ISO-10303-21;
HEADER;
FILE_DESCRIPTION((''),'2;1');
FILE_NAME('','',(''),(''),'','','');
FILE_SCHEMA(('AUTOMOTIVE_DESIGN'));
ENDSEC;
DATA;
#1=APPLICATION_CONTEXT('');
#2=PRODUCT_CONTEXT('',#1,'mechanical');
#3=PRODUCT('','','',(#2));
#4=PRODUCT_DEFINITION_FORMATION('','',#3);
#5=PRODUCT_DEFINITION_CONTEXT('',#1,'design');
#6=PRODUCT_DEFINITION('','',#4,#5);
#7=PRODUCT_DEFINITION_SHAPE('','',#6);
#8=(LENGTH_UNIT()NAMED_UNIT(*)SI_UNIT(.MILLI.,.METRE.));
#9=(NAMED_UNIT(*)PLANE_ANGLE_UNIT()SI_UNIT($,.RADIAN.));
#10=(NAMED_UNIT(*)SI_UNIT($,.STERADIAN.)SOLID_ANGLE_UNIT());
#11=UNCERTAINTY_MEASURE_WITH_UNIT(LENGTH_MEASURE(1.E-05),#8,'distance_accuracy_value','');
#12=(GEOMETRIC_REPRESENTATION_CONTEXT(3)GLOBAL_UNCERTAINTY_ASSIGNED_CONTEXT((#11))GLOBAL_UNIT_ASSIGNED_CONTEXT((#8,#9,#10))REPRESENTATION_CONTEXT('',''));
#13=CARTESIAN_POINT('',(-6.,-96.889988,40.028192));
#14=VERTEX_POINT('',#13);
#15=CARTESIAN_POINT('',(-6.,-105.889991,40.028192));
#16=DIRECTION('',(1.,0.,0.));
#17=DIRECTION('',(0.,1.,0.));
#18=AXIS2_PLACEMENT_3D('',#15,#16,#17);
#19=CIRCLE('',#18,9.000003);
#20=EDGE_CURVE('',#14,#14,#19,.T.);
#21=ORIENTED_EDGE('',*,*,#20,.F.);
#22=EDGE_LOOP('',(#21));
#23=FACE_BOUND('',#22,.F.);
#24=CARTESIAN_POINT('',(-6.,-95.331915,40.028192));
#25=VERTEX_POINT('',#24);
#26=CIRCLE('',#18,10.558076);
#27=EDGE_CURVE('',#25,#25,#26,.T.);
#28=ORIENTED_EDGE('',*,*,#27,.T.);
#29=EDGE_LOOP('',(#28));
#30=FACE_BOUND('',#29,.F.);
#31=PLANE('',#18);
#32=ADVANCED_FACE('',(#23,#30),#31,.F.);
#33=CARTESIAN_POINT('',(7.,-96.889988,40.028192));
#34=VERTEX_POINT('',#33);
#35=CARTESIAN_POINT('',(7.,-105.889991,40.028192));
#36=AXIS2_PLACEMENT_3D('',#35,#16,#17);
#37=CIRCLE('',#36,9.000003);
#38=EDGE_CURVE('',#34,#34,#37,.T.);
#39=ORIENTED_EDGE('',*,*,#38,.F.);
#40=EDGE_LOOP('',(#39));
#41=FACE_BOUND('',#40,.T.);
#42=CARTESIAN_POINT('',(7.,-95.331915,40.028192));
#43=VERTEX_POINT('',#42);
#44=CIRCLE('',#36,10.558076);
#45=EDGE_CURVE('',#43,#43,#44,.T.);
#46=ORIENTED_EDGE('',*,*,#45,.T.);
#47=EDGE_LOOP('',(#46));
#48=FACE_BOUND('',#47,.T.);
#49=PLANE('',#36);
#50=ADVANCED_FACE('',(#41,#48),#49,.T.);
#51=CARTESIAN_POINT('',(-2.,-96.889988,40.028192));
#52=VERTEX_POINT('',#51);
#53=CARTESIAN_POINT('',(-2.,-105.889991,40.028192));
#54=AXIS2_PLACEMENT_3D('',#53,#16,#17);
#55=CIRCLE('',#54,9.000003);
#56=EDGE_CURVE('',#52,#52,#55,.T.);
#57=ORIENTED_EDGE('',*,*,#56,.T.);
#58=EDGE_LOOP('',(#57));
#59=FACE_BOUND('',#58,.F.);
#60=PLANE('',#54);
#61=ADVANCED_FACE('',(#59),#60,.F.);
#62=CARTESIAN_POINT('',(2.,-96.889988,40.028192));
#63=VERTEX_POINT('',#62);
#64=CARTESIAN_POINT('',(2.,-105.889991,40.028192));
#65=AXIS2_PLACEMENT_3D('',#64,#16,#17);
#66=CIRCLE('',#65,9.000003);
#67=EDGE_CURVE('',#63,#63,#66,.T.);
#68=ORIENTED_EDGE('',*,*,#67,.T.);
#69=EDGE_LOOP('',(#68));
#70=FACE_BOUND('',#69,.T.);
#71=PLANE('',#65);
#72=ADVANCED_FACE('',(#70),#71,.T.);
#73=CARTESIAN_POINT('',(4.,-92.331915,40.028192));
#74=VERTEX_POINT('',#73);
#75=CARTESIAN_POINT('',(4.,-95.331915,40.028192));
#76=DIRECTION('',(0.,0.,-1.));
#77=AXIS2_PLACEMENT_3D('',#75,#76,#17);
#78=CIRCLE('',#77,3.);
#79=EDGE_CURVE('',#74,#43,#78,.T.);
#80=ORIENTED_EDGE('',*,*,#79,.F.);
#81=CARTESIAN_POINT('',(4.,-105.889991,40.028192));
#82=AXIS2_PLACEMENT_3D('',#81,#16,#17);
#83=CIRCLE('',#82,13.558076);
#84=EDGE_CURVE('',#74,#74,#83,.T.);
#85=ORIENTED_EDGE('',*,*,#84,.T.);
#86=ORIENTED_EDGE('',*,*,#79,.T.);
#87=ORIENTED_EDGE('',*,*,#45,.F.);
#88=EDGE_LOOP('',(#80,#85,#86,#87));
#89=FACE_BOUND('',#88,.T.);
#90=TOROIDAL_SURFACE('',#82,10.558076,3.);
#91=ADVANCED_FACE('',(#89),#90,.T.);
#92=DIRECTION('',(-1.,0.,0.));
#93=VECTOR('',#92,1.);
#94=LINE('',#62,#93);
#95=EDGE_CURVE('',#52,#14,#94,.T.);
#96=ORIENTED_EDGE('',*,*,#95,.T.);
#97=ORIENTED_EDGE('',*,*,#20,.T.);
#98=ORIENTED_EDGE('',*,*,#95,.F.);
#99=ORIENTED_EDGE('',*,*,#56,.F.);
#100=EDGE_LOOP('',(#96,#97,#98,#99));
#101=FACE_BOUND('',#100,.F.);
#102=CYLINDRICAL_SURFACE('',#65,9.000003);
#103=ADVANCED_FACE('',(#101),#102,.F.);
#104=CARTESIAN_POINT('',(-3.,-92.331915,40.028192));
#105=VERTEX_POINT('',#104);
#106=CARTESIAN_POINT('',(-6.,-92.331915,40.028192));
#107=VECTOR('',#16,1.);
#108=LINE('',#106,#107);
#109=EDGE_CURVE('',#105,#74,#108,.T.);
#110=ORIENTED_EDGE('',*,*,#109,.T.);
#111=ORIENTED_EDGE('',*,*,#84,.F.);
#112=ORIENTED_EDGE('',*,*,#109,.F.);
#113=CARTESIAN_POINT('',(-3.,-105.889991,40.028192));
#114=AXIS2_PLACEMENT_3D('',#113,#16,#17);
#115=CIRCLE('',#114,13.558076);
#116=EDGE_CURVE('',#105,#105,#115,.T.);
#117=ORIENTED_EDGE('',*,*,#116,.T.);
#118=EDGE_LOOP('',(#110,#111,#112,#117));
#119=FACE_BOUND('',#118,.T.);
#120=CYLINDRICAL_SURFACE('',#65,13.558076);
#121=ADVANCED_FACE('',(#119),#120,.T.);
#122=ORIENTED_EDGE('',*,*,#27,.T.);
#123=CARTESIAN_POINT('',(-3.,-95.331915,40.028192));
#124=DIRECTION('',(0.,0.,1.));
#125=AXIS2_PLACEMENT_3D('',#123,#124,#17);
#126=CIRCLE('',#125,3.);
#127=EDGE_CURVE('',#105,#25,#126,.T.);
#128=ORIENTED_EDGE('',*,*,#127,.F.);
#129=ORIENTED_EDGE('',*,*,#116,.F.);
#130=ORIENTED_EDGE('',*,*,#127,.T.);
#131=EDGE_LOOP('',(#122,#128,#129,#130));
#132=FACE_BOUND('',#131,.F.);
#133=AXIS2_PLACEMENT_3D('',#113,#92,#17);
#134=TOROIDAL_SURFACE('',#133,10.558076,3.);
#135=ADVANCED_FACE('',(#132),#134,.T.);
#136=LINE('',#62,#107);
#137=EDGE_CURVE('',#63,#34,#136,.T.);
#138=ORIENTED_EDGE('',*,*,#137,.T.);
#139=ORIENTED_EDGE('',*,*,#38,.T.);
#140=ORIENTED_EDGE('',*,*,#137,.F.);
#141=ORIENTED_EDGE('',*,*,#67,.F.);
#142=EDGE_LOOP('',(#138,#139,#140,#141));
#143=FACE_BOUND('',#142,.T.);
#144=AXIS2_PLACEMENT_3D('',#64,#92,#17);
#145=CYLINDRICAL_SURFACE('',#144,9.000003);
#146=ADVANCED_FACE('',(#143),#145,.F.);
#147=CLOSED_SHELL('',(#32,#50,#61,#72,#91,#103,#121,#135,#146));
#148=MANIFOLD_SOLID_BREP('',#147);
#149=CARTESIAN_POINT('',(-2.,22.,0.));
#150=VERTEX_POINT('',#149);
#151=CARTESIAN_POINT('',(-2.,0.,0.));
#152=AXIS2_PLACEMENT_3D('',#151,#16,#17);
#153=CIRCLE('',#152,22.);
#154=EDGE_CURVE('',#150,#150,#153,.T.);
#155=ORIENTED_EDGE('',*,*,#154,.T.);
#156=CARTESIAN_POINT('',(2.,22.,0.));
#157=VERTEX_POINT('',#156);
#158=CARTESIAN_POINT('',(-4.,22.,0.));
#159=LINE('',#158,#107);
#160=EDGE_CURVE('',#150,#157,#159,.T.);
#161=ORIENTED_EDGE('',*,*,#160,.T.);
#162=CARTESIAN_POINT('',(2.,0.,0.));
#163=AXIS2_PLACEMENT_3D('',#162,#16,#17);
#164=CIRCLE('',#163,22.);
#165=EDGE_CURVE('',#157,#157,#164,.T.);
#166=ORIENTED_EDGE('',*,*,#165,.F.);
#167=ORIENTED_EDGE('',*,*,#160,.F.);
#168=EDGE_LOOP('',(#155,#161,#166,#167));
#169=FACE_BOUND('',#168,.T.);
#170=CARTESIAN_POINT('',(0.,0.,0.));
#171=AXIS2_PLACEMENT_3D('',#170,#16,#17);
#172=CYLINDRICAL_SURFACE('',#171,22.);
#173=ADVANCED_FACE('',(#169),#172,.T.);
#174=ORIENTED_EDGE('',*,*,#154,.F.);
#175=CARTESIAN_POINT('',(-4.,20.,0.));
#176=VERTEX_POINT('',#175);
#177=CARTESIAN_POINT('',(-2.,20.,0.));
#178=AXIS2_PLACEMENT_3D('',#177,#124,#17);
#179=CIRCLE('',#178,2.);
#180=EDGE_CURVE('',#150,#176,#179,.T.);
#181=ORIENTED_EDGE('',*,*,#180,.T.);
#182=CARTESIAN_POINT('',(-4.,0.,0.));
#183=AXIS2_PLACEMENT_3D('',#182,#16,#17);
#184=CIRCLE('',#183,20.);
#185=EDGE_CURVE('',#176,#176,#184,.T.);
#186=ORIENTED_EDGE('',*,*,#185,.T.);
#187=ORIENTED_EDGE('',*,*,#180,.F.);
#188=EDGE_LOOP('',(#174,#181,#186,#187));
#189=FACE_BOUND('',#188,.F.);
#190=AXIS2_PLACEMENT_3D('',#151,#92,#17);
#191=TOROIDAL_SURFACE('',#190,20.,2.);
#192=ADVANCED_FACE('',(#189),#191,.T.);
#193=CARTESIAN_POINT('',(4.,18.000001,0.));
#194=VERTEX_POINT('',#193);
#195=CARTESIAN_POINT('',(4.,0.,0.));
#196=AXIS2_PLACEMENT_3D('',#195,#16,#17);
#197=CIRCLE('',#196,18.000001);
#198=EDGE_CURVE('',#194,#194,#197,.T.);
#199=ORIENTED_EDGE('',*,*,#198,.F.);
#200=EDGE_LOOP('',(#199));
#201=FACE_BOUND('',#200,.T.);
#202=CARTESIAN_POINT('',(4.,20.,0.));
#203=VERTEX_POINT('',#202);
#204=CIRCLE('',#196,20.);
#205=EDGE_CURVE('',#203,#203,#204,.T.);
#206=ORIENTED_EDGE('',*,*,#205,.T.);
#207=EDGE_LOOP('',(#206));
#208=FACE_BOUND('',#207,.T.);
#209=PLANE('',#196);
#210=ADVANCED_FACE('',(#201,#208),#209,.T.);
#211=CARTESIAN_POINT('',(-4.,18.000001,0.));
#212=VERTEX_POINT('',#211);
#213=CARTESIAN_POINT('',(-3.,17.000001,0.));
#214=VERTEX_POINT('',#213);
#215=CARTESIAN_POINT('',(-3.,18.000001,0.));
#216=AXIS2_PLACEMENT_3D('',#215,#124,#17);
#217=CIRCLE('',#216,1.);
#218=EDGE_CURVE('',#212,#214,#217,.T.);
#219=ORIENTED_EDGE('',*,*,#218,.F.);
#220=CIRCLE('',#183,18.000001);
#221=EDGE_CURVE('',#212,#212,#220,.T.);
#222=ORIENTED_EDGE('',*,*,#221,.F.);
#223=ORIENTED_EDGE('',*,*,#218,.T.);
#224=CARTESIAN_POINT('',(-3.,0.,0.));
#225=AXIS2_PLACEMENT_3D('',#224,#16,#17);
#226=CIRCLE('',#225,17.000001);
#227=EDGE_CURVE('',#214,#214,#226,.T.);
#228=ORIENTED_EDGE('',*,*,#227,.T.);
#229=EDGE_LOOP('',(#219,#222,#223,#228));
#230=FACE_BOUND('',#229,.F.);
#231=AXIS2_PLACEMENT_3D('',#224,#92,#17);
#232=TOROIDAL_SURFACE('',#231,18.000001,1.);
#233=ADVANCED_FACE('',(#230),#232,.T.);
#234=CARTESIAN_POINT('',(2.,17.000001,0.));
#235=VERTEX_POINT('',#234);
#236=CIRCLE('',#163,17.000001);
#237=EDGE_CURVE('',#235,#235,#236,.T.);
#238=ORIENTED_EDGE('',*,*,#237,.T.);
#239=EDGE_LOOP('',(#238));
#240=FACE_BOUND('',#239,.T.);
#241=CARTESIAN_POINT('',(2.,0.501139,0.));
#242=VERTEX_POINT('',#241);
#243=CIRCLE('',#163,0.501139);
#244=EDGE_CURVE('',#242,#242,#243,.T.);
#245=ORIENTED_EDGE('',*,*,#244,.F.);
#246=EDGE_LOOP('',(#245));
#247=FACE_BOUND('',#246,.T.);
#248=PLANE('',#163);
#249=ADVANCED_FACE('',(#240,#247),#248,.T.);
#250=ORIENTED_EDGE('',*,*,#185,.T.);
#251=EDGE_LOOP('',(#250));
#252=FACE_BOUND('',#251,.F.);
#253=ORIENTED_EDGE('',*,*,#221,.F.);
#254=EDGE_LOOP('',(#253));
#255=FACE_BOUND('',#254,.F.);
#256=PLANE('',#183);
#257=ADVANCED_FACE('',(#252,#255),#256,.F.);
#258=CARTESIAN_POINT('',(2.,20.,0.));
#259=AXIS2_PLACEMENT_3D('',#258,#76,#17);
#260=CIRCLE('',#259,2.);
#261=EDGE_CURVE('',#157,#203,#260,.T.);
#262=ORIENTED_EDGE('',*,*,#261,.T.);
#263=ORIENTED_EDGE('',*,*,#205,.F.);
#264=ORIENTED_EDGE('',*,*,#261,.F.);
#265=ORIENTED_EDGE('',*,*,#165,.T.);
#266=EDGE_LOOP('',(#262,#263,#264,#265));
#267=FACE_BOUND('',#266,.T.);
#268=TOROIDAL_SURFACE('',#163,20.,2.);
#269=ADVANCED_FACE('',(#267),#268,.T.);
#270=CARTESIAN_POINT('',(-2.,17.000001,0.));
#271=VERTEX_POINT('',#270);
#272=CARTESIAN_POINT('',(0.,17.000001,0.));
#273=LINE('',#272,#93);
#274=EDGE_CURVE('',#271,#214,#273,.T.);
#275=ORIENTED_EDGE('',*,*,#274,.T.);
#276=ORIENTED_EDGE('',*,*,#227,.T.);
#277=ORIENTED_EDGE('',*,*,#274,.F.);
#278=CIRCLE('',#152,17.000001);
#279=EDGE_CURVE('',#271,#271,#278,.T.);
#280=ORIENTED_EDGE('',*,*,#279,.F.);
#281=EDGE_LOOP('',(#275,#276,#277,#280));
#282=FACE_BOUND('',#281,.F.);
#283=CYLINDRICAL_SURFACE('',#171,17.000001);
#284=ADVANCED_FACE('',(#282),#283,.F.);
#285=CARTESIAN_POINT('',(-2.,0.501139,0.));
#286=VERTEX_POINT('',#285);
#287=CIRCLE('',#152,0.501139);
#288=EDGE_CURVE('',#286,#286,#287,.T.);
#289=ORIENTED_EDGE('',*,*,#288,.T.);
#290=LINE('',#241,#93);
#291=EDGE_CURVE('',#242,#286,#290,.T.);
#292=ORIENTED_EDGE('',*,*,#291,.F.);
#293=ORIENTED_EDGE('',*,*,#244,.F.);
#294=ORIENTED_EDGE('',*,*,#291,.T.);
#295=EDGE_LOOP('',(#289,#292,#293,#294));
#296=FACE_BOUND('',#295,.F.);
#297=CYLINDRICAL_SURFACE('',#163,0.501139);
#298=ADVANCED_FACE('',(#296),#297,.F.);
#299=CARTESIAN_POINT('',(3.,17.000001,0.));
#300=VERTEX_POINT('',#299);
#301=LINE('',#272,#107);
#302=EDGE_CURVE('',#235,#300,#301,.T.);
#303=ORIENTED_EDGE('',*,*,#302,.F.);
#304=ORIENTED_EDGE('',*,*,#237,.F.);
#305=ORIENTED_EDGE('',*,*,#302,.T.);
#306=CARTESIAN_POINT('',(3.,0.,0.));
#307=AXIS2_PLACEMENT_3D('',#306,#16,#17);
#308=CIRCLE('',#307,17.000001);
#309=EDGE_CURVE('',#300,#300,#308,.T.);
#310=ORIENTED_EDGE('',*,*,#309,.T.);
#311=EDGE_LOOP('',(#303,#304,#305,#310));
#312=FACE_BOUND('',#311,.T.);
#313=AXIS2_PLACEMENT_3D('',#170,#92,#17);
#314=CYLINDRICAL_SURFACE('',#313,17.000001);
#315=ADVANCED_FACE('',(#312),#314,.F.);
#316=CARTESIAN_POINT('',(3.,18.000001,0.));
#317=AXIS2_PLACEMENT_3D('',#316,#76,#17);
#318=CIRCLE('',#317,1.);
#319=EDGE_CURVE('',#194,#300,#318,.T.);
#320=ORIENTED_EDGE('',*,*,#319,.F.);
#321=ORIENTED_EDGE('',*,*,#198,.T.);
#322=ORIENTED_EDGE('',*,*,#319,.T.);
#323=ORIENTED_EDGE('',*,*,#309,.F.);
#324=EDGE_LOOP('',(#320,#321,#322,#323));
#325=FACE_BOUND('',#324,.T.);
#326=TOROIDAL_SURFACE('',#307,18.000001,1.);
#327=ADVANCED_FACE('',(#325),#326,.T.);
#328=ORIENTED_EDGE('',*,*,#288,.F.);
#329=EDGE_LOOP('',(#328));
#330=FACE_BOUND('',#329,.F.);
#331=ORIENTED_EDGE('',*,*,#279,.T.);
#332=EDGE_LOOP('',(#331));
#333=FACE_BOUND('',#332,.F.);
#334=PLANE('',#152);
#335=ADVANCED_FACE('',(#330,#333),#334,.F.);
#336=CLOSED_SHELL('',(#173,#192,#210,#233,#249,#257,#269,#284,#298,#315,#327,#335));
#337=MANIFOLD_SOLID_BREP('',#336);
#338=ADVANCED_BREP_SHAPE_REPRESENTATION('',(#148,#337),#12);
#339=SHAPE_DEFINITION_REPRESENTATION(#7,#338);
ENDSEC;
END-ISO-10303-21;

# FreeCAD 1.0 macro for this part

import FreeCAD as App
import Part
import Sketcher

V = App.Vector
Q = App.Units.Quantity


def edges_at(feature, points):
    """Names of the edges that pass closest to the given points."""
    edges = feature.Shape.Edges
    near = lambda p: min(range(len(edges)), key=lambda i: edges[i].distToShape(Part.Vertex(*p))[0])
    return sorted({f"Edge{near(p) + 1}" for p in points})

doc = App.newDocument("Part")
body = doc.addObject("PartDesign::Body", "Body")

sketch1 = body.newObject("Sketcher::SketchObject", "Sketch")
sketch1.AttachmentSupport = (doc.getObject("YZ_Plane"), [""])
sketch1.MapMode = "FlatFace"
sketch1.addGeometry(Part.Circle(V(0, 0, 0), V(0, 0, 1), 17.000001), False)
sketch1.addConstraint([
    Sketcher.Constraint("Coincident", 0, 3, -1, 1),
    Sketcher.Constraint("Diameter", 0, Q("34.000002 mm")),
])
pad1 = body.newObject("PartDesign::Pad", "Pad")
pad1.Profile = sketch1
pad1.Type = "TwoLengths"
pad1.Length = 2
pad1.Length2 = 2

sketch2 = body.newObject("Sketcher::SketchObject", "Sketch001")
sketch2.AttachmentSupport = (doc.getObject("YZ_Plane"), [""])
sketch2.MapMode = "FlatFace"
sketch2.addGeometry([
    Part.Circle(V(0, 0, 0), V(0, 0, 1), 22),
    Part.Circle(V(0, 0, 0), V(0, 0, 1), 17.000001),
], False)
sketch2.addConstraint([
    Sketcher.Constraint("Coincident", 0, 3, -1, 1),
    Sketcher.Constraint("Coincident", 1, 3, -1, 1),
    Sketcher.Constraint("Diameter", 0, Q("44 mm")),
    Sketcher.Constraint("Diameter", 1, Q("34.000002 mm")),
])
pad2 = body.newObject("PartDesign::Pad", "Pad001")
pad2.Profile = sketch2
pad2.Type = "TwoLengths"
pad2.Length = 4
pad2.Length2 = 4
doc.recompute()

fillet = body.newObject("PartDesign::Fillet", "Fillet")
fillet.Base = (pad2, edges_at(pad2, [(4, -22, 0), (-4, -22, 0)]))
fillet.Radius = 2
doc.recompute()

fillet2 = body.newObject("PartDesign::Fillet", "Fillet001")
fillet2.Base = (fillet, edges_at(fillet, [(4, -17, 0), (-4, -17, 0)]))
fillet2.Radius = 1

sketch3 = body.newObject("Sketcher::SketchObject", "Sketch002")
sketch3.AttachmentSupport = (doc.getObject("YZ_Plane"), [""])
sketch3.MapMode = "FlatFace"
sketch3.AttachmentOffset = App.Placement(V(0, 0, 2), App.Rotation())
sketch3.addGeometry(Part.Circle(V(0, 0, 0), V(0, 0, 1), 0.501139), False)
sketch3.addConstraint([
    Sketcher.Constraint("Coincident", 0, 3, -1, 1),
    Sketcher.Constraint("Diameter", 0, Q("1.002278 mm")),
])
pocket1 = body.newObject("PartDesign::Pocket", "Pocket")
pocket1.Profile = sketch3
pocket1.Length = 25
pocket2 = body.newObject("PartDesign::Pocket", "Pocket001")
pocket2.Profile = sketch3
pocket2.Length = 25
body2 = doc.addObject("PartDesign::Body", "Body001")

sketch4 = body2.newObject("Sketcher::SketchObject", "Sketch003")
sketch4.AttachmentSupport = (doc.getObject("YZ_Plane001"), [""])
sketch4.MapMode = "FlatFace"
sketch4.addGeometry(Part.Circle(V(-105.889991, 40.028192, 0), V(0, 0, 1), 9.000003), False)
sketch4.addConstraint([
    Sketcher.Constraint("Diameter", 0, Q("18.000006 mm")),
    Sketcher.Constraint("DistanceX", 0, 3, -1, 1, Q("105.889991 mm")),
    Sketcher.Constraint("DistanceY", -1, 1, 0, 3, Q("40.028192 mm")),
])
pad3 = body2.newObject("PartDesign::Pad", "Pad002")
pad3.Profile = sketch4
pad3.Type = "TwoLengths"
pad3.Length = 2
pad3.Length2 = 2

sketch5 = body2.newObject("Sketcher::SketchObject", "Sketch004")
sketch5.AttachmentSupport = (doc.getObject("YZ_Plane001"), [""])
sketch5.MapMode = "FlatFace"
sketch5.AttachmentOffset = App.Placement(V(0, 0, 2), App.Rotation())
sketch5.addGeometry([
    Part.Circle(V(-105.889991, 40.028192, 0), V(0, 0, 1), 13.558076),
    Part.Circle(V(-105.889991, 40.028192, 0), V(0, 0, 1), 9.000003),
], False)
sketch5.addConstraint([
    Sketcher.Constraint("Coincident", 1, 3, 0, 3),
    Sketcher.Constraint("Diameter", 0, Q("27.116152 mm")),
    Sketcher.Constraint("Diameter", 1, Q("18.000006 mm")),
    Sketcher.Constraint("DistanceX", 0, 3, -1, 1, Q("105.889991 mm")),
    Sketcher.Constraint("DistanceY", -1, 1, 0, 3, Q("40.028192 mm")),
])
pad4 = body2.newObject("PartDesign::Pad", "Pad003")
pad4.Profile = sketch5
pad4.Type = "TwoLengths"
pad4.Length = 5
pad4.Length2 = 8
doc.recompute()

fillet3 = body2.newObject("PartDesign::Fillet", "Fillet002")
fillet3.Base = (pad4, edges_at(pad4, [(7, -119.448, 40.028), (-6, -119.448, 40.028)]))
fillet3.Radius = 3

doc.recompute()
